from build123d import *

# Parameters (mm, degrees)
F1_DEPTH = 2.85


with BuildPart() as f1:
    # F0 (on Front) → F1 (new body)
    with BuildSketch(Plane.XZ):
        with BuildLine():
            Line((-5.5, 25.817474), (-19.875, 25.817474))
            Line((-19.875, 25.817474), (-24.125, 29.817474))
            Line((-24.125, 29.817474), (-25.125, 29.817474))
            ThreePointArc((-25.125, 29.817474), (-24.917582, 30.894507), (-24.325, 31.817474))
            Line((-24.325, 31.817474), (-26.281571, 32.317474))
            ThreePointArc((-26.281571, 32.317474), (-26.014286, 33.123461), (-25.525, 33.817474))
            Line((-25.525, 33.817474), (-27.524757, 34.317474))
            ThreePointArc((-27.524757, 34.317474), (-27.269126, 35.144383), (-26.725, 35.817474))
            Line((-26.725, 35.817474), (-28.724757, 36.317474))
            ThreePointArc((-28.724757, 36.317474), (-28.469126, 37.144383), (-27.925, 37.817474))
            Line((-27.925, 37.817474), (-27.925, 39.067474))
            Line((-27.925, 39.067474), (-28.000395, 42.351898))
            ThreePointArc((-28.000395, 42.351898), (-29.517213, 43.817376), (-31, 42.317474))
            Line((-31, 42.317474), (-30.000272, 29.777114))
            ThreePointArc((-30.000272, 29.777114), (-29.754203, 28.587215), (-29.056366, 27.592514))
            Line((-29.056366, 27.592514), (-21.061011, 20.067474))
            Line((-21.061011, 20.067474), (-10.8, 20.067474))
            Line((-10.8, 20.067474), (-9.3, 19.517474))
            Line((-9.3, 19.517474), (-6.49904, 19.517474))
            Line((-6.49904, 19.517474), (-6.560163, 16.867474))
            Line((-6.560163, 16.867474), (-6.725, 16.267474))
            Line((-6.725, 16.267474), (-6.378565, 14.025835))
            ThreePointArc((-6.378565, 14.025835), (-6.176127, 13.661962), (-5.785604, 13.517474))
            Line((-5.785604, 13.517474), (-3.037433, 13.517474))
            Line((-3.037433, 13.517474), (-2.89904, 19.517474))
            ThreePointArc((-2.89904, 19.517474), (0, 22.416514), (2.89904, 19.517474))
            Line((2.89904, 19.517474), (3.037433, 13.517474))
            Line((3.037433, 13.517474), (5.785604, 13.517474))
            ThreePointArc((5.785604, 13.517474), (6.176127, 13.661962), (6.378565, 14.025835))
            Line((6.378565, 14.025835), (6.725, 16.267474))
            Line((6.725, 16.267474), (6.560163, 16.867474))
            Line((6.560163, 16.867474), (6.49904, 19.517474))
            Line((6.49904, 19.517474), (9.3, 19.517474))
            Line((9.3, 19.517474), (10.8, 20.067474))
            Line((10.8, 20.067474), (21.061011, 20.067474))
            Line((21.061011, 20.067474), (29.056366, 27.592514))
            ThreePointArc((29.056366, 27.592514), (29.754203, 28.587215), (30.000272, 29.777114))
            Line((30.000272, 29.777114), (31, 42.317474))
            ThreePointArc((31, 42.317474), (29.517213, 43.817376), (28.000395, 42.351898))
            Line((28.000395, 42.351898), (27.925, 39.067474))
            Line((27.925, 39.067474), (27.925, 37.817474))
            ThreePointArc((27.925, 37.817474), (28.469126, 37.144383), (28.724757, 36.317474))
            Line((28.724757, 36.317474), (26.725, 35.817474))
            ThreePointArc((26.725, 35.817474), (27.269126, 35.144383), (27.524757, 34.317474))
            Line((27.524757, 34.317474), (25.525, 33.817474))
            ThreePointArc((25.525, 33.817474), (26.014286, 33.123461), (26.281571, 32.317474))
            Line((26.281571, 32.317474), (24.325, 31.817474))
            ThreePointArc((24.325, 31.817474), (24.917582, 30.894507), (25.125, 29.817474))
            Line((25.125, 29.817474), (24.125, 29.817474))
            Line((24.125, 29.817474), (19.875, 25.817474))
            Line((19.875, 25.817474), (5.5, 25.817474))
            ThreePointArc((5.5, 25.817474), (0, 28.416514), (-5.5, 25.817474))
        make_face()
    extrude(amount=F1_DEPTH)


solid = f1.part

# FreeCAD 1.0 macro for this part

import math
import FreeCAD as App
import Part
import Sketcher
Q = App.Units.Quantity

doc = App.newDocument("Part")
body = doc.addObject("PartDesign::Body", "Body")

# Sketch on XZ plane
sketch1 = doc.addObject("Sketcher::SketchObject", "Sketch")
body.addObject(sketch1)
sketch1.AttachmentSupport = (doc.XZ_Plane, [""])
sketch1.MapMode = "FlatFace"
sketch1.addGeometry([
    Part.LineSegment(App.Vector(-5.5, 25.8, 0), App.Vector(-19.9, 25.8, 0)),  # 0
    Part.LineSegment(App.Vector(-19.9, 25.8, 0), App.Vector(-24.1, 29.8, 0)),  # 1
    Part.LineSegment(App.Vector(-24.1, 29.8, 0), App.Vector(-25.1, 29.8, 0)),  # 2
    Part.ArcOfCircle(Part.Circle(App.Vector(-22.2, 29.8, 0), App.Vector(0, 0, 1), 2.9), math.radians(136), math.radians(180)),  # 3
    Part.LineSegment(App.Vector(-24.3, 31.8, 0), App.Vector(-26.3, 32.3, 0)),  # 4
    Part.ArcOfCircle(Part.Circle(App.Vector(-23.4, 31.8, 0), App.Vector(0, 0, 1), 2.9), math.radians(136), math.radians(170)),  # 5
    Part.LineSegment(App.Vector(-25.5, 33.8, 0), App.Vector(-27.5, 34.3, 0)),  # 6
    Part.ArcOfCircle(Part.Circle(App.Vector(-25.2, 34.1, 0), App.Vector(0, 0, 1), 2.3), math.radians(130), math.radians(174)),  # 7
    Part.LineSegment(App.Vector(-26.7, 35.8, 0), App.Vector(-28.7, 36.3, 0)),  # 8
    Part.ArcOfCircle(Part.Circle(App.Vector(-26.4, 36.1, 0), App.Vector(0, 0, 1), 2.3), math.radians(130), math.radians(174)),  # 9
    Part.LineSegment(App.Vector(-27.9, 37.8, 0), App.Vector(-27.9, 39.1, 0)),  # 10
    Part.LineSegment(App.Vector(-27.9, 39.1, 0), App.Vector(-28, 42.4, 0)),  # 11
    Part.ArcOfCircle(Part.Circle(App.Vector(-29.5, 42.3, 0), App.Vector(0, 0, 1), 1.5), math.radians(1), math.radians(180)),  # 12
    Part.LineSegment(App.Vector(-31, 42.3, 0), App.Vector(-30, 29.8, 0)),  # 13
    Part.ArcOfCircle(Part.Circle(App.Vector(-27, 29.8, 0), App.Vector(0, 0, 1), 3), math.radians(-180), math.radians(-133)),  # 14
    Part.LineSegment(App.Vector(-29.1, 27.6, 0), App.Vector(-21.1, 20.1, 0)),  # 15
    Part.LineSegment(App.Vector(-21.1, 20.1, 0), App.Vector(-10.8, 20.1, 0)),  # 16
    Part.LineSegment(App.Vector(-10.8, 20.1, 0), App.Vector(-9.3, 19.5, 0)),  # 17
    Part.LineSegment(App.Vector(-9.3, 19.5, 0), App.Vector(-6.5, 19.5, 0)),  # 18
    Part.LineSegment(App.Vector(-6.5, 19.5, 0), App.Vector(-6.6, 16.9, 0)),  # 19
    Part.LineSegment(App.Vector(-6.6, 16.9, 0), App.Vector(-6.7, 16.3, 0)),  # 20
    Part.LineSegment(App.Vector(-6.7, 16.3, 0), App.Vector(-6.4, 14, 0)),  # 21
    Part.ArcOfCircle(Part.Circle(App.Vector(-5.8, 14.1, 0), App.Vector(0, 0, 1), 0.6), math.radians(-171), math.radians(-90)),  # 22
    Part.LineSegment(App.Vector(-5.8, 13.5, 0), App.Vector(-3, 13.5, 0)),  # 23
    Part.LineSegment(App.Vector(-3, 13.5, 0), App.Vector(-2.9, 19.5, 0)),  # 24
    Part.ArcOfCircle(Part.Circle(App.Vector(0, 19.5, 0), App.Vector(0, 0, 1), 2.9), math.radians(0), math.radians(180)),  # 25
    Part.LineSegment(App.Vector(2.9, 19.5, 0), App.Vector(3, 13.5, 0)),  # 26
    Part.LineSegment(App.Vector(3, 13.5, 0), App.Vector(5.8, 13.5, 0)),  # 27
    Part.ArcOfCircle(Part.Circle(App.Vector(5.8, 14.1, 0), App.Vector(0, 0, 1), 0.6), math.radians(-90), math.radians(-9)),  # 28
    Part.LineSegment(App.Vector(6.4, 14, 0), App.Vector(6.7, 16.3, 0)),  # 29
    Part.LineSegment(App.Vector(6.7, 16.3, 0), App.Vector(6.6, 16.9, 0)),  # 30
    Part.LineSegment(App.Vector(6.6, 16.9, 0), App.Vector(6.5, 19.5, 0)),  # 31
    Part.LineSegment(App.Vector(6.5, 19.5, 0), App.Vector(9.3, 19.5, 0)),  # 32
    Part.LineSegment(App.Vector(9.3, 19.5, 0), App.Vector(10.8, 20.1, 0)),  # 33
    Part.LineSegment(App.Vector(10.8, 20.1, 0), App.Vector(21.1, 20.1, 0)),  # 34
    Part.LineSegment(App.Vector(21.1, 20.1, 0), App.Vector(29.1, 27.6, 0)),  # 35
    Part.ArcOfCircle(Part.Circle(App.Vector(27, 29.8, 0), App.Vector(0, 0, 1), 3), math.radians(-47), math.radians(0)),  # 36
    Part.LineSegment(App.Vector(30, 29.8, 0), App.Vector(31, 42.3, 0)),  # 37
    Part.ArcOfCircle(Part.Circle(App.Vector(29.5, 42.3, 0), App.Vector(0, 0, 1), 1.5), math.radians(0), math.radians(179)),  # 38
    Part.LineSegment(App.Vector(28, 42.4, 0), App.Vector(27.9, 39.1, 0)),  # 39
    Part.LineSegment(App.Vector(27.9, 39.1, 0), App.Vector(27.9, 37.8, 0)),  # 40
    Part.ArcOfCircle(Part.Circle(App.Vector(26.4, 36.1, 0), App.Vector(0, 0, 1), 2.3), math.radians(6), math.radians(50)),  # 41
    Part.LineSegment(App.Vector(28.7, 36.3, 0), App.Vector(26.7, 35.8, 0)),  # 42
    Part.ArcOfCircle(Part.Circle(App.Vector(25.2, 34.1, 0), App.Vector(0, 0, 1), 2.3), math.radians(6), math.radians(50)),  # 43
    Part.LineSegment(App.Vector(27.5, 34.3, 0), App.Vector(25.5, 33.8, 0)),  # 44
    Part.ArcOfCircle(Part.Circle(App.Vector(23.4, 31.8, 0), App.Vector(0, 0, 1), 2.9), math.radians(10), math.radians(44)),  # 45
    Part.LineSegment(App.Vector(26.3, 32.3, 0), App.Vector(24.3, 31.8, 0)),  # 46
    Part.ArcOfCircle(Part.Circle(App.Vector(22.2, 29.8, 0), App.Vector(0, 0, 1), 2.9), math.radians(0), math.radians(44)),  # 47
    Part.LineSegment(App.Vector(25.1, 29.8, 0), App.Vector(24.1, 29.8, 0)),  # 48
    Part.LineSegment(App.Vector(24.1, 29.8, 0), App.Vector(19.9, 25.8, 0)),  # 49
    Part.LineSegment(App.Vector(19.9, 25.8, 0), App.Vector(5.5, 25.8, 0)),  # 50
    Part.ArcOfCircle(Part.Circle(App.Vector(0, 21.3, 0), App.Vector(0, 0, 1), 7.1), math.radians(39), math.radians(141)),  # 51
], False)
sketch1.addConstraint([
    Sketcher.Constraint("Coincident", 0, 2, 1, 1),
    Sketcher.Constraint("Coincident", 1, 2, 2, 1),
    Sketcher.Constraint("Coincident", 2, 2, 3, 2),
    Sketcher.Constraint("Coincident", 3, 1, 4, 1),
    Sketcher.Constraint("Coincident", 4, 2, 5, 2),
    Sketcher.Constraint("Coincident", 5, 1, 6, 1),
    Sketcher.Constraint("Coincident", 6, 2, 7, 2),
    Sketcher.Constraint("Coincident", 7, 1, 8, 1),
    Sketcher.Constraint("Coincident", 8, 2, 9, 2),
    Sketcher.Constraint("Coincident", 9, 1, 10, 1),
    Sketcher.Constraint("Coincident", 10, 2, 11, 1),
    Sketcher.Constraint("Tangent", 11, 2, 12, 1),
    Sketcher.Constraint("Coincident", 12, 2, 13, 1),
    Sketcher.Constraint("Coincident", 13, 2, 14, 1),
    Sketcher.Constraint("Tangent", 14, 2, 15, 1),
    Sketcher.Constraint("Coincident", 15, 2, 16, 1),
    Sketcher.Constraint("Coincident", 16, 2, 17, 1),
    Sketcher.Constraint("Coincident", 17, 2, 18, 1),
    Sketcher.Constraint("Coincident", 18, 2, 19, 1),
    Sketcher.Constraint("Coincident", 19, 2, 20, 1),
    Sketcher.Constraint("Coincident", 20, 2, 21, 1),
    Sketcher.Constraint("Coincident", 21, 2, 22, 1),
    Sketcher.Constraint("Coincident", 22, 2, 23, 1),
    Sketcher.Constraint("Coincident", 23, 2, 24, 1),
    Sketcher.Constraint("Coincident", 24, 2, 25, 2),
    Sketcher.Constraint("Coincident", 25, 1, 26, 1),
    Sketcher.Constraint("Coincident", 26, 2, 27, 1),
    Sketcher.Constraint("Coincident", 27, 2, 28, 1),
    Sketcher.Constraint("Coincident", 28, 2, 29, 1),
    Sketcher.Constraint("Coincident", 29, 2, 30, 1),
    Sketcher.Constraint("Coincident", 30, 2, 31, 1),
    Sketcher.Constraint("Coincident", 31, 2, 32, 1),
    Sketcher.Constraint("Coincident", 32, 2, 33, 1),
    Sketcher.Constraint("Coincident", 33, 2, 34, 1),
    Sketcher.Constraint("Coincident", 34, 2, 35, 1),
    Sketcher.Constraint("Tangent", 35, 2, 36, 1),
    Sketcher.Constraint("Coincident", 36, 2, 37, 1),
    Sketcher.Constraint("Coincident", 37, 2, 38, 1),
    Sketcher.Constraint("Tangent", 38, 2, 39, 1),
    Sketcher.Constraint("Coincident", 39, 2, 40, 1),
    Sketcher.Constraint("Coincident", 40, 2, 41, 2),
    Sketcher.Constraint("Coincident", 41, 1, 42, 1),
    Sketcher.Constraint("Coincident", 42, 2, 43, 2),
    Sketcher.Constraint("Coincident", 43, 1, 44, 1),
    Sketcher.Constraint("Coincident", 44, 2, 45, 2),
    Sketcher.Constraint("Coincident", 45, 1, 46, 1),
    Sketcher.Constraint("Coincident", 46, 2, 47, 2),
    Sketcher.Constraint("Coincident", 47, 1, 48, 1),
    Sketcher.Constraint("Coincident", 48, 2, 49, 1),
    Sketcher.Constraint("Coincident", 49, 2, 50, 1),
    Sketcher.Constraint("Coincident", 50, 2, 51, 1),
    Sketcher.Constraint("Coincident", 51, 2, 0, 1),
    Sketcher.Constraint("Horizontal", 0),
    Sketcher.Constraint("Horizontal", 2),
    Sketcher.Constraint("Vertical", 10),
    Sketcher.Constraint("Horizontal", 16),
    Sketcher.Constraint("Horizontal", 18),
    Sketcher.Constraint("Horizontal", 23),
    Sketcher.Constraint("Horizontal", 27),
    Sketcher.Constraint("Horizontal", 32),
    Sketcher.Constraint("Horizontal", 34),
    Sketcher.Constraint("Vertical", 40),
    Sketcher.Constraint("Horizontal", 48),
    Sketcher.Constraint("Horizontal", 50),
    Sketcher.Constraint("Equal", 7, 9),
    Sketcher.Constraint("Equal", 22, 28),
    Sketcher.Constraint("Equal", 14, 36),
    Sketcher.Constraint("Equal", 12, 38),
    Sketcher.Constraint("Equal", 9, 41),
    Sketcher.Constraint("Equal", 41, 43),
    Sketcher.Constraint("Equal", 5, 45),
    Sketcher.Constraint("Equal", 3, 47),
    Sketcher.Constraint("Symmetric", 22, 3, 28, 3, -2),
    Sketcher.Constraint("Symmetric", 14, 3, 36, 3, -2),
    Sketcher.Constraint("Symmetric", 12, 3, 38, 3, -2),
    Sketcher.Constraint("Symmetric", 9, 3, 41, 3, -2),
    Sketcher.Constraint("Symmetric", 7, 3, 43, 3, -2),
    Sketcher.Constraint("Symmetric", 5, 3, 45, 3, -2),
    Sketcher.Constraint("Symmetric", 3, 3, 47, 3, -2),
    Sketcher.Constraint("Symmetric", 24, 2, 25, 1, -2),
    Sketcher.Constraint("Symmetric", 20, 2, 29, 2, -2),
    Sketcher.Constraint("Symmetric", 19, 2, 30, 2, -2),
    Sketcher.Constraint("Symmetric", 18, 2, 31, 2, -2),
    Sketcher.Constraint("Symmetric", 16, 2, 33, 2, -2),
    Sketcher.Constraint("Symmetric", 10, 2, 39, 2, -2),
    Sketcher.Constraint("Symmetric", 1, 2, 48, 2, -2),
    Sketcher.Constraint("Symmetric", 0, 2, 49, 2, -2),
    Sketcher.Constraint("PointOnObject", 51, 3, -2),
    Sketcher.Constraint("Parallel", 6, 8),
    Sketcher.Constraint("Parallel", 1, 15),
    Sketcher.Constraint("Parallel", 19, 24),
    Sketcher.Constraint("Parallel", 26, 31),
    Sketcher.Constraint("Parallel", 42, 44),
    Sketcher.Constraint("Parallel", 35, 49),
    Sketcher.Constraint("Horizontal", 47, 3, 1, 2),
    Sketcher.Constraint("Horizontal", 38, 3, 12, 2),
    Sketcher.Constraint("Horizontal", 25, 3, 17, 2),
    Sketcher.Constraint("Horizontal", 18, 2, 24, 2),
    Sketcher.Constraint("Horizontal", 21, 2, 28, 2),
    Sketcher.Constraint("Horizontal", 13, 2, 36, 2),
    Sketcher.Constraint("Horizontal", 12, 2, 37, 2),
    Sketcher.Constraint("Horizontal", 8, 2, 41, 1),
    Sketcher.Constraint("Horizontal", 7, 1, 42, 2),
    Sketcher.Constraint("Horizontal", 6, 2, 43, 1),
    Sketcher.Constraint("Horizontal", 4, 2, 45, 1),
    Sketcher.Constraint("Horizontal", 3, 1, 46, 2),
    Sketcher.Constraint("Vertical", 28, 3, 27, 2),
    Sketcher.Constraint("Equal", 23, 27),
    Sketcher.Constraint("Equal", 18, 32),
    Sketcher.Constraint("Equal", 6, 8),
    Sketcher.Constraint("Radius", 12, Q("1.5 mm")),
    Sketcher.Constraint("DistanceX", 2, 2, 2, 1, Q("1 mm")),
    Sketcher.Constraint("DistanceX", 12, 2, -1, 1, Q("31 mm")),
    Sketcher.Constraint("DistanceY", 10, 1, 10, 2, Q("1.25 mm")),
    Sketcher.Constraint("DistanceX", 16, 2, -1, 1, Q("10.8 mm")),
    Sketcher.Constraint("DistanceX", 17, 2, -1, 1, Q("9.3 mm")),
    Sketcher.Constraint("DistanceX", -1, 1, 50, 2, Q("5.5 mm")),
    Sketcher.Constraint("DistanceX", 0, 2, 0, 1, Q("14.375 mm")),
    Sketcher.Constraint("Radius", 5, Q("2.89998 mm")),
    Sketcher.Constraint("Radius", 25, Q("2.89904 mm")),
    Sketcher.Constraint("DistanceX", 1, 2, -1, 1, Q("24.125 mm")),
    Sketcher.Constraint("DistanceX", 3, 1, -1, 1, Q("24.325 mm")),
    Sketcher.Constraint("DistanceX", 5, 1, -1, 1, Q("25.525 mm")),
    Sketcher.Constraint("DistanceX", 7, 1, -1, 1, Q("26.725 mm")),
    Sketcher.Constraint("DistanceX", 9, 1, -1, 1, Q("27.925 mm")),
    Sketcher.Constraint("DistanceX", 20, 2, -1, 1, Q("6.725 mm")),
    Sketcher.Constraint("Radius", 3, Q("2.900005 mm")),
    Sketcher.Constraint("Radius", 7, Q("2.291328 mm")),
    Sketcher.Constraint("Radius", 14, Q("3.000008 mm")),
    Sketcher.Constraint("Radius", 22, Q("0.600002 mm")),
    Sketcher.Constraint("Radius", 51, Q("7.118976 mm")),
    Sketcher.Constraint("DistanceX", 16, 1, 16, 2, Q("10.261011 mm")),
    Sketcher.Constraint("DistanceX", 18, 1, 18, 2, Q("2.80096 mm")),
    Sketcher.Constraint("DistanceX", 23, 1, 23, 2, Q("2.748171 mm")),
    Sketcher.Constraint("Distance", 1, Q("5.836309 mm")),
    Sketcher.Constraint("Distance", 11, Q("3.285289 mm")),
    Sketcher.Constraint("Distance", 20, Q("0.622231 mm")),
    Sketcher.Constraint("Distance", 21, Q("2.268251 mm")),
    Sketcher.Constraint("DistanceX", 5, 3, -1, 1, Q("23.425018 mm")),
    Sketcher.Constraint("DistanceX", 7, 3, -1, 1, Q("25.247231 mm")),
    Sketcher.Constraint("DistanceX", 9, 3, -1, 1, Q("26.447231 mm")),
    Sketcher.Constraint("DistanceX", 4, 2, -1, 1, Q("26.281571 mm")),
    Sketcher.Constraint("DistanceX", 13, 2, -1, 1, Q("30.000272 mm")),
    Sketcher.Constraint("Distance", 4, Q("2.019448 mm")),
    Sketcher.Constraint("Distance", 6, Q("2.061317 mm")),
    Sketcher.Constraint("Distance", 13, Q("12.580146 mm")),
    Sketcher.Constraint("Distance", 17, Q("1.597655 mm")),
    Sketcher.Constraint("Distance", 19, Q("2.650705 mm")),
    Sketcher.Constraint("Distance", 24, Q("6.001596 mm")),
    Sketcher.Constraint("DistanceY", -1, 1, 3, 3, Q("29.817472 mm")),
    Sketcher.Constraint("DistanceY", -1, 1, 7, 3, Q("34.066366 mm")),
    Sketcher.Constraint("DistanceY", -1, 1, 14, 3, Q("29.777117 mm")),
    Sketcher.Constraint("DistanceX", 22, 3, -1, 1, Q("5.785602 mm")),
])
pad1 = doc.addObject("PartDesign::Pad", "Pad")
body.addObject(pad1)
pad1.Profile = sketch1
pad1.Length = 2.85

doc.recompute()
